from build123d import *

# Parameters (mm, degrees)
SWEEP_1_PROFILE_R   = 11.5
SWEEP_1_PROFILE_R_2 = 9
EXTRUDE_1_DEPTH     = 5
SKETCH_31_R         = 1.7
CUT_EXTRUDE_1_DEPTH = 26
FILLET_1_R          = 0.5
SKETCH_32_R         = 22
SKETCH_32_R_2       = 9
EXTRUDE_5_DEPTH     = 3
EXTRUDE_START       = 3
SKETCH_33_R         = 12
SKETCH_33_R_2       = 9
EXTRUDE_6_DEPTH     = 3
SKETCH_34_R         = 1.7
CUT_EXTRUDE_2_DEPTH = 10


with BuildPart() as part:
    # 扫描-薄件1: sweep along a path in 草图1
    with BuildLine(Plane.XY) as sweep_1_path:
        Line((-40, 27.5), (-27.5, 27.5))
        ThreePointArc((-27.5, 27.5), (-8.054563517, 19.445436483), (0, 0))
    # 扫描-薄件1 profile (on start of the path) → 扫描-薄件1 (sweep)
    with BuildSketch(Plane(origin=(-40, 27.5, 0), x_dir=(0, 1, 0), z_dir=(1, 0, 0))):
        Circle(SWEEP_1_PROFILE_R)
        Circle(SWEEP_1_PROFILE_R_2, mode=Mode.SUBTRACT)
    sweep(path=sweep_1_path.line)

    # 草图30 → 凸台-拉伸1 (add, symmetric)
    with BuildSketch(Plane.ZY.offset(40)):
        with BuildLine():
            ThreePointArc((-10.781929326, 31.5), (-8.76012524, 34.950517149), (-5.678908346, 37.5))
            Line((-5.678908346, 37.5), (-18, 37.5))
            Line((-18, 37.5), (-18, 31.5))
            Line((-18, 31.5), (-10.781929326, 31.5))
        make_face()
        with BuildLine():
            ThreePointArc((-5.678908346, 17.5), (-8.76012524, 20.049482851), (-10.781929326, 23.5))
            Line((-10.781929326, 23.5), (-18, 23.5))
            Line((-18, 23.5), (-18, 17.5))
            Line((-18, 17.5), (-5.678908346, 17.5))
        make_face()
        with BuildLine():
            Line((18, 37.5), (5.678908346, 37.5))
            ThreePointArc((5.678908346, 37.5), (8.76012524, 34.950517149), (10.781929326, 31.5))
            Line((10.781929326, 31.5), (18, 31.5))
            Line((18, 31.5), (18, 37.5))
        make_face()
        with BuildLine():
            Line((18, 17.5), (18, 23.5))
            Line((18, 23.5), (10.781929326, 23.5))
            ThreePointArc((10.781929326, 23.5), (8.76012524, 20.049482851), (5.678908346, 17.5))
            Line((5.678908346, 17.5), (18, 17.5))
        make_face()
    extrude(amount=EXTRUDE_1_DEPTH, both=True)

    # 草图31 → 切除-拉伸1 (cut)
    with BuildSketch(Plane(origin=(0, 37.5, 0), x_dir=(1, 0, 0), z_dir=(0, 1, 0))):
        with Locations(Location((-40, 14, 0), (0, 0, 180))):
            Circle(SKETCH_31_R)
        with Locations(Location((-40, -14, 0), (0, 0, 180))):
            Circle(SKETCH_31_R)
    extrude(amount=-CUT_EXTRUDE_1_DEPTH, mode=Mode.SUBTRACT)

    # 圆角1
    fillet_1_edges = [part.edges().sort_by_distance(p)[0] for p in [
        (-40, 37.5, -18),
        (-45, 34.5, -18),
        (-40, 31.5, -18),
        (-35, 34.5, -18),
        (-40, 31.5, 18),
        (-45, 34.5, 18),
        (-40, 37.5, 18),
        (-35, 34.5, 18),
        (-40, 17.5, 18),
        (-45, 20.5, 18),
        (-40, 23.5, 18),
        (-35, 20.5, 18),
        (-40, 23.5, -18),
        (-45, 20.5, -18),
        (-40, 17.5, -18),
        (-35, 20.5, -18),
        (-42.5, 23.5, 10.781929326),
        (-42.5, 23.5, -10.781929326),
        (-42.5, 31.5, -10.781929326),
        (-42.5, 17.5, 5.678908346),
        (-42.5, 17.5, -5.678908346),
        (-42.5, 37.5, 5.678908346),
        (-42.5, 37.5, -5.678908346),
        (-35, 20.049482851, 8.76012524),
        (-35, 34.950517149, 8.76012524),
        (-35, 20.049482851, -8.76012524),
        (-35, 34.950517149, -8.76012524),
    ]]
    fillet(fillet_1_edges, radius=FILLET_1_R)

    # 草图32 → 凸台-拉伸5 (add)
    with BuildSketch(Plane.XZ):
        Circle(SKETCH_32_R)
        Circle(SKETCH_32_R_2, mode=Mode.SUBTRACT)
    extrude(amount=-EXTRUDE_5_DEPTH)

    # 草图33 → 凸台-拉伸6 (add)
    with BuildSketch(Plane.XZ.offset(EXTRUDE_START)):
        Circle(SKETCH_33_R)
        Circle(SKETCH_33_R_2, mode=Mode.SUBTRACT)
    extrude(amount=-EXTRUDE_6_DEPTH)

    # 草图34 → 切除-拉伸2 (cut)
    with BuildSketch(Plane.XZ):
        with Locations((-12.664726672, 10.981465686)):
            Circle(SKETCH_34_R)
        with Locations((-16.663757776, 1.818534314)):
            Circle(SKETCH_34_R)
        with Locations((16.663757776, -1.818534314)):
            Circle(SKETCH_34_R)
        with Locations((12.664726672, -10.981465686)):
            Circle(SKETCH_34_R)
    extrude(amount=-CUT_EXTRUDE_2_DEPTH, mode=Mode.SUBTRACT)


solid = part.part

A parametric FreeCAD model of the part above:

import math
import FreeCAD as App
import Part
import Sketcher
from FreeCAD import Vector


def edges_at(feature, points):
    """Names of the edges that pass closest to the given points."""
    edges = feature.Shape.Edges
    near = lambda p: min(range(len(edges)), key=lambda i: edges[i].distToShape(Part.Vertex(*p))[0])
    return sorted({f"Edge{near(p) + 1}" for p in points})

doc = App.newDocument("Part")
body = doc.addObject("PartDesign::Body", "Body")

# Sketch on YZ plane
sketch1 = body.newObject("Sketcher::SketchObject", "Sketch")
sketch1.AttachmentSupport = (doc.getObject("YZ_Plane"), [""])
sketch1.MapMode = "FlatFace"
sketch1.AttachmentOffset = App.Placement(Vector(0, 0, -40), App.Rotation())
sketch1.addGeometry([
    Part.Circle(Vector(28, 0, 0), Vector(0, 0, 1), 12),
    Part.Circle(Vector(28, 0, 0), Vector(0, 0, 1), 9),
], False)
sketch1.addConstraint([
    Sketcher.Constraint("Coincident", 1, 3, 0, 3),
    Sketcher.Constraint("PointOnObject", 0, 3, -1),
    Sketcher.Constraint("Diameter", 0, 23.0),
    Sketcher.Constraint("Diameter", 1, 18.0),
    Sketcher.Constraint("DistanceX", -1, 1, 0, 3, 27.5),
])

# Sketch on XY plane
sketch2 = body.newObject("Sketcher::SketchObject", "Sketch001")
sketch2.AttachmentSupport = (doc.getObject("XY_Plane"), [""])
sketch2.MapMode = "FlatFace"
sketch2.addGeometry([
    Part.LineSegment(Vector(-40, 28, 0), Vector(-28, 28, 0)),
    Part.ArcOfCircle(Part.Circle(Vector(-27, 0, 0), Vector(0, 0, 1), 27), math.radians(0), math.radians(90)),
], False)
sketch2.addConstraint([
    Sketcher.Constraint("Tangent", 0, 2, 1, 2),
    Sketcher.Constraint("Horizontal", 0),
    Sketcher.Constraint("Coincident", 1, 1, -1, 1),
    Sketcher.Constraint("PointOnObject", 1, 3, -1),
    Sketcher.Constraint("Radius", 1, 27.5),
    Sketcher.Constraint("DistanceX", 0, 1, 0, 2, 12.5),
])
doc.recompute()

additivepipe = body.newObject("PartDesign::AdditivePipe", "AdditivePipe")
additivepipe.Profile = sketch1
additivepipe.Spine = (sketch2, ["Edge1", "Edge2"])

# Sketch on YZ plane
sketch3 = body.newObject("Sketcher::SketchObject", "Sketch002")
sketch3.AttachmentSupport = (doc.getObject("YZ_Plane"), [""])
sketch3.MapMode = "FlatFace"
sketch3.AttachmentOffset = App.Placement(Vector(0, 0, -40), App.Rotation())
sketch3.addGeometry([
    Part.ArcOfCircle(Part.Circle(Vector(28, 0, 0), Vector(0, 0, 1), 11), math.radians(-70), math.radians(-30)),  # 0
    Part.LineSegment(Vector(38, -6, 0), Vector(38, -18, 0)),  # 1
    Part.LineSegment(Vector(38, -18, 0), Vector(32, -18, 0)),  # 2
    Part.LineSegment(Vector(32, -18, 0), Vector(32, -11, 0)),  # 3
    Part.ArcOfCircle(Part.Circle(Vector(27, 0, 0), Vector(0, 0, 1), 11), math.radians(-150), math.radians(-110)),  # 4
    Part.LineSegment(Vector(24, -11, 0), Vector(24, -18, 0)),  # 5
    Part.LineSegment(Vector(24, -18, 0), Vector(18, -18, 0)),  # 6
    Part.LineSegment(Vector(18, -18, 0), Vector(18, -6, 0)),  # 7
    Part.LineSegment(Vector(38, 18, 0), Vector(38, 6, 0)),  # 8
    Part.ArcOfCircle(Part.Circle(Vector(28, 0, 0), Vector(0, 0, 1), 11), math.radians(30), math.radians(70)),  # 9
    Part.LineSegment(Vector(32, 11, 0), Vector(32, 18, 0)),  # 10
    Part.LineSegment(Vector(32, 18, 0), Vector(38, 18, 0)),  # 11
    Part.LineSegment(Vector(18, 18, 0), Vector(24, 18, 0)),  # 12
    Part.LineSegment(Vector(24, 18, 0), Vector(24, 11, 0)),  # 13
    Part.ArcOfCircle(Part.Circle(Vector(27, 0, 0), Vector(0, 0, 1), 11), math.radians(110), math.radians(150)),  # 14
    Part.LineSegment(Vector(18, 6, 0), Vector(18, 18, 0)),  # 15
], False)
sketch3.addConstraint([
    Sketcher.Constraint("Coincident", 0, 2, 1, 1),
    Sketcher.Constraint("Coincident", 1, 2, 2, 1),
    Sketcher.Constraint("Coincident", 2, 2, 3, 1),
    Sketcher.Constraint("Coincident", 3, 2, 0, 1),
    Sketcher.Constraint("Coincident", 4, 2, 5, 1),
    Sketcher.Constraint("Coincident", 5, 2, 6, 1),
    Sketcher.Constraint("Coincident", 6, 2, 7, 1),
    Sketcher.Constraint("Coincident", 7, 2, 4, 1),
    Sketcher.Constraint("Coincident", 8, 2, 9, 1),
    Sketcher.Constraint("Coincident", 9, 2, 10, 1),
    Sketcher.Constraint("Coincident", 10, 2, 11, 1),
    Sketcher.Constraint("Coincident", 11, 2, 8, 1),
    Sketcher.Constraint("Coincident", 12, 2, 13, 1),
    Sketcher.Constraint("Coincident", 13, 2, 14, 1),
    Sketcher.Constraint("Coincident", 14, 2, 15, 1),
    Sketcher.Constraint("Coincident", 15, 2, 12, 1),
    Sketcher.Constraint("Vertical", 1),
    Sketcher.Constraint("Horizontal", 2),
    Sketcher.Constraint("Vertical", 3),
    Sketcher.Constraint("Vertical", 5),
    Sketcher.Constraint("Horizontal", 6),
    Sketcher.Constraint("Vertical", 7),
    Sketcher.Constraint("Vertical", 8),
    Sketcher.Constraint("Vertical", 10),
    Sketcher.Constraint("Horizontal", 11),
    Sketcher.Constraint("Horizontal", 12),
    Sketcher.Constraint("Vertical", 13),
    Sketcher.Constraint("Vertical", 15),
    Sketcher.Constraint("Coincident", 4, 3, 0, 3),
    Sketcher.Constraint("Coincident", 9, 3, 0, 3),
    Sketcher.Constraint("Coincident", 14, 3, 0, 3),
    Sketcher.Constraint("Equal", 0, 4),
    Sketcher.Constraint("Equal", 4, 9),
    Sketcher.Constraint("Equal", 9, 14),
    Sketcher.Constraint("Symmetric", 0, 2, 8, 2, -1),
    Sketcher.Constraint("Symmetric", 2, 2, 10, 2, -1),
    Sketcher.Constraint("Symmetric", 5, 2, 12, 2, -1),
    Sketcher.Constraint("Horizontal", 3, 2, 4, 2),
    Sketcher.Constraint("Horizontal", 2, 2, 5, 2),
    Sketcher.Constraint("Horizontal", 0, 2, 7, 2),
    Sketcher.Constraint("Horizontal", 8, 2, 14, 2),
    Sketcher.Constraint("Radius", 0, 11.5),
    Sketcher.Constraint("DistanceX", 2, 2, 2, 1, 6.0),
    Sketcher.Constraint("DistanceY", 1, 2, -1, 1, 18.0),
    Sketcher.Constraint("DistanceX", 0, 3, 0, 2, 10.0),
    Sketcher.Constraint("DistanceX", -1, 1, 0, 3, 27.5),
])
pad1 = body.newObject("PartDesign::Pad", "Pad")
pad1.Profile = sketch3
pad1.Length = 10
pad1.Midplane = True

# Sketch on XZ plane
sketch4 = body.newObject("Sketcher::SketchObject", "Sketch003")
sketch4.AttachmentSupport = (doc.getObject("XZ_Plane"), [""])
sketch4.MapMode = "FlatFace"
sketch4.AttachmentOffset = App.Placement(Vector(0, 0, -37.5), App.Rotation())
sketch4.addGeometry([
    Part.Circle(Vector(-40, -14, 0), Vector(0, 0, 1), 1.7),
    Part.Circle(Vector(-40, 14, 0), Vector(0, 0, 1), 1.7),
], False)
sketch4.addConstraint([
    Sketcher.Constraint("Equal", 0, 1),
    Sketcher.Constraint("Symmetric", 0, 3, 1, 3, -1),
    Sketcher.Constraint("Diameter", 0, 3.4),
    Sketcher.Constraint("DistanceX", 0, 3, -1, 1, 40.0),
    Sketcher.Constraint("DistanceY", 0, 3, -1, 1, 14.0),
])
pocket1 = body.newObject("PartDesign::Pocket", "Pocket")
pocket1.Profile = sketch4
pocket1.Length = 26
pocket1.Reversed = True
doc.recompute()

fillet = body.newObject("PartDesign::Fillet", "Fillet")
fillet.Base = (pocket1, edges_at(pocket1, [
    (-40, 37.5, -18),
    (-45, 34.5, -18),
    (-40, 31.5, -18),
    (-35, 34.5, -18),
    (-40, 31.5, 18),
    (-45, 34.5, 18),
    (-40, 37.5, 18),
    (-35, 34.5, 18),
    (-40, 17.5, 18),
    (-45, 20.5, 18),
    (-40, 23.5, 18),
    (-35, 20.5, 18),
    (-40, 23.5, -18),
    (-45, 20.5, -18),
    (-40, 17.5, -18),
    (-35, 20.5, -18),
    (-42.5, 23.5, 10.782),
    (-42.5, 23.5, -10.782),
    (-42.5, 31.5, -10.782),
    (-42.5, 17.5, 5.679),
    (-42.5, 17.5, -5.679),
    (-42.5, 37.5, 5.679),
    (-42.5, 37.5, -5.679),
    (-35, 20.049, 8.76),
    (-35, 34.951, 8.76),
    (-35, 20.049, -8.76),
    (-35, 34.951, -8.76),
]))
fillet.Radius = 0.5

# Sketch on XZ plane
sketch5 = body.newObject("Sketcher::SketchObject", "Sketch004")
sketch5.AttachmentSupport = (doc.getObject("XZ_Plane"), [""])
sketch5.MapMode = "FlatFace"
sketch5.addGeometry([
    Part.Circle(Vector(0, 0, 0), Vector(0, 0, 1), 22),
    Part.Circle(Vector(0, 0, 0), Vector(0, 0, 1), 9),
], False)
sketch5.addConstraint([
    Sketcher.Constraint("Coincident", 0, 3, -1, 1),
    Sketcher.Constraint("Coincident", 1, 3, -1, 1),
    Sketcher.Constraint("Diameter", 0, 44.0),
    Sketcher.Constraint("Diameter", 1, 18.0),
])
pad2 = body.newObject("PartDesign::Pad", "Pad001")
pad2.Profile = sketch5
pad2.Length = 3
pad2.Reversed = True

# Sketch on XZ plane
sketch6 = body.newObject("Sketcher::SketchObject", "Sketch005")
sketch6.AttachmentSupport = (doc.getObject("XZ_Plane"), [""])
sketch6.MapMode = "FlatFace"
sketch6.AttachmentOffset = App.Placement(Vector(0, 0, 3), App.Rotation())
sketch6.addGeometry([
    Part.Circle(Vector(0, 0, 0), Vector(0, 0, 1), 12),
    Part.Circle(Vector(0, 0, 0), Vector(0, 0, 1), 9),
], False)
sketch6.addConstraint([
    Sketcher.Constraint("Coincident", 0, 3, -1, 1),
    Sketcher.Constraint("Coincident", 1, 3, -1, 1),
    Sketcher.Constraint("Diameter", 0, 24.0),
    Sketcher.Constraint("Diameter", 1, 18.0),
])
pad3 = body.newObject("PartDesign::Pad", "Pad002")
pad3.Profile = sketch6
pad3.Length = 3
pad3.Reversed = True

# Sketch on XZ plane
sketch7 = body.newObject("Sketcher::SketchObject", "Sketch006")
sketch7.AttachmentSupport = (doc.getObject("XZ_Plane"), [""])
sketch7.MapMode = "FlatFace"
sketch7.addGeometry([
    Part.Circle(Vector(-12.7, 11, 0), Vector(0, 0, 1), 1.7),
    Part.Circle(Vector(-16.7, 1.8, 0), Vector(0, 0, 1), 1.7),
    Part.Circle(Vector(16.7, -1.8, 0), Vector(0, 0, 1), 1.7),
    Part.Circle(Vector(12.7, -11, 0), Vector(0, 0, 1), 1.7),
], False)
sketch7.addConstraint([
    Sketcher.Constraint("Equal", 0, 1),
    Sketcher.Constraint("Equal", 1, 2),
    Sketcher.Constraint("Equal", 2, 3),
    Sketcher.Constraint("Symmetric", 1, 3, 2, 3, -1, 1),
    Sketcher.Constraint("Symmetric", 0, 3, 3, 3, -1, 1),
    Sketcher.Constraint("Diameter", 0, 3.4),
    Sketcher.Constraint("DistanceY", 2, 3, 0, 3, 12.8),
    Sketcher.Constraint("DistanceX", 1, 3, 0, 3, 3.999031),
    Sketcher.Constraint("DistanceY", 1, 3, 0, 3, 9.162931),
    Sketcher.Constraint("DistanceX", 0, 3, -1, 1, 12.664727),
])
pocket2 = body.newObject("PartDesign::Pocket", "Pocket001")
pocket2.Profile = sketch7
pocket2.Length = 10

doc.recompute()
